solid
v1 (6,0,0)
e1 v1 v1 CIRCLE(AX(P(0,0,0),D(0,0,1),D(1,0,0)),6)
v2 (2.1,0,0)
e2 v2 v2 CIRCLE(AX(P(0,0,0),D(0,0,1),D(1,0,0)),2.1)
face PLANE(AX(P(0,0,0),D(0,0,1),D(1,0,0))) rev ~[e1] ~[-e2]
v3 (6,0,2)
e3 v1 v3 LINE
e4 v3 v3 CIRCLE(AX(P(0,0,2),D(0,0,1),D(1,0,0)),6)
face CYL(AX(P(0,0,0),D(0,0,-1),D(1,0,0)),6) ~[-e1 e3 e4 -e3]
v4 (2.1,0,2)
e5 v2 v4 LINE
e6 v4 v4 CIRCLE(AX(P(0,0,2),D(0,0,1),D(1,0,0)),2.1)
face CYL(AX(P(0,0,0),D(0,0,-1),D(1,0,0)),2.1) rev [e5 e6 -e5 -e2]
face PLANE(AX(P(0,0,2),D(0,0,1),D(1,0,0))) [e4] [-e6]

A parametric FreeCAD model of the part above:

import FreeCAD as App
import Part
import Sketcher

V = App.Vector
Q = App.Units.Quantity

doc = App.newDocument("Part")
body = doc.addObject("PartDesign::Body", "Body")

# Sketch on XY plane
sketch1 = body.newObject("Sketcher::SketchObject", "Sketch")
sketch1.AttachmentSupport = (doc.getObject("XY_Plane"), [""])
sketch1.MapMode = "FlatFace"
sketch1.addGeometry([
    Part.Circle(V(0, 0, 0), V(0, 0, 1), 6),
    Part.Circle(V(0, 0, 0), V(0, 0, 1), 2.1),
], False)
sketch1.addConstraint([
    Sketcher.Constraint("Coincident", 0, 3, -1, 1),
    Sketcher.Constraint("Coincident", 1, 3, -1, 1),
    Sketcher.Constraint("Diameter", 0, Q("12 mm")),
    Sketcher.Constraint("Diameter", 1, Q("4.2 mm")),
])
pad1 = body.newObject("PartDesign::Pad", "Pad")
pad1.Profile = sketch1
pad1.Length = 2

doc.recompute()
